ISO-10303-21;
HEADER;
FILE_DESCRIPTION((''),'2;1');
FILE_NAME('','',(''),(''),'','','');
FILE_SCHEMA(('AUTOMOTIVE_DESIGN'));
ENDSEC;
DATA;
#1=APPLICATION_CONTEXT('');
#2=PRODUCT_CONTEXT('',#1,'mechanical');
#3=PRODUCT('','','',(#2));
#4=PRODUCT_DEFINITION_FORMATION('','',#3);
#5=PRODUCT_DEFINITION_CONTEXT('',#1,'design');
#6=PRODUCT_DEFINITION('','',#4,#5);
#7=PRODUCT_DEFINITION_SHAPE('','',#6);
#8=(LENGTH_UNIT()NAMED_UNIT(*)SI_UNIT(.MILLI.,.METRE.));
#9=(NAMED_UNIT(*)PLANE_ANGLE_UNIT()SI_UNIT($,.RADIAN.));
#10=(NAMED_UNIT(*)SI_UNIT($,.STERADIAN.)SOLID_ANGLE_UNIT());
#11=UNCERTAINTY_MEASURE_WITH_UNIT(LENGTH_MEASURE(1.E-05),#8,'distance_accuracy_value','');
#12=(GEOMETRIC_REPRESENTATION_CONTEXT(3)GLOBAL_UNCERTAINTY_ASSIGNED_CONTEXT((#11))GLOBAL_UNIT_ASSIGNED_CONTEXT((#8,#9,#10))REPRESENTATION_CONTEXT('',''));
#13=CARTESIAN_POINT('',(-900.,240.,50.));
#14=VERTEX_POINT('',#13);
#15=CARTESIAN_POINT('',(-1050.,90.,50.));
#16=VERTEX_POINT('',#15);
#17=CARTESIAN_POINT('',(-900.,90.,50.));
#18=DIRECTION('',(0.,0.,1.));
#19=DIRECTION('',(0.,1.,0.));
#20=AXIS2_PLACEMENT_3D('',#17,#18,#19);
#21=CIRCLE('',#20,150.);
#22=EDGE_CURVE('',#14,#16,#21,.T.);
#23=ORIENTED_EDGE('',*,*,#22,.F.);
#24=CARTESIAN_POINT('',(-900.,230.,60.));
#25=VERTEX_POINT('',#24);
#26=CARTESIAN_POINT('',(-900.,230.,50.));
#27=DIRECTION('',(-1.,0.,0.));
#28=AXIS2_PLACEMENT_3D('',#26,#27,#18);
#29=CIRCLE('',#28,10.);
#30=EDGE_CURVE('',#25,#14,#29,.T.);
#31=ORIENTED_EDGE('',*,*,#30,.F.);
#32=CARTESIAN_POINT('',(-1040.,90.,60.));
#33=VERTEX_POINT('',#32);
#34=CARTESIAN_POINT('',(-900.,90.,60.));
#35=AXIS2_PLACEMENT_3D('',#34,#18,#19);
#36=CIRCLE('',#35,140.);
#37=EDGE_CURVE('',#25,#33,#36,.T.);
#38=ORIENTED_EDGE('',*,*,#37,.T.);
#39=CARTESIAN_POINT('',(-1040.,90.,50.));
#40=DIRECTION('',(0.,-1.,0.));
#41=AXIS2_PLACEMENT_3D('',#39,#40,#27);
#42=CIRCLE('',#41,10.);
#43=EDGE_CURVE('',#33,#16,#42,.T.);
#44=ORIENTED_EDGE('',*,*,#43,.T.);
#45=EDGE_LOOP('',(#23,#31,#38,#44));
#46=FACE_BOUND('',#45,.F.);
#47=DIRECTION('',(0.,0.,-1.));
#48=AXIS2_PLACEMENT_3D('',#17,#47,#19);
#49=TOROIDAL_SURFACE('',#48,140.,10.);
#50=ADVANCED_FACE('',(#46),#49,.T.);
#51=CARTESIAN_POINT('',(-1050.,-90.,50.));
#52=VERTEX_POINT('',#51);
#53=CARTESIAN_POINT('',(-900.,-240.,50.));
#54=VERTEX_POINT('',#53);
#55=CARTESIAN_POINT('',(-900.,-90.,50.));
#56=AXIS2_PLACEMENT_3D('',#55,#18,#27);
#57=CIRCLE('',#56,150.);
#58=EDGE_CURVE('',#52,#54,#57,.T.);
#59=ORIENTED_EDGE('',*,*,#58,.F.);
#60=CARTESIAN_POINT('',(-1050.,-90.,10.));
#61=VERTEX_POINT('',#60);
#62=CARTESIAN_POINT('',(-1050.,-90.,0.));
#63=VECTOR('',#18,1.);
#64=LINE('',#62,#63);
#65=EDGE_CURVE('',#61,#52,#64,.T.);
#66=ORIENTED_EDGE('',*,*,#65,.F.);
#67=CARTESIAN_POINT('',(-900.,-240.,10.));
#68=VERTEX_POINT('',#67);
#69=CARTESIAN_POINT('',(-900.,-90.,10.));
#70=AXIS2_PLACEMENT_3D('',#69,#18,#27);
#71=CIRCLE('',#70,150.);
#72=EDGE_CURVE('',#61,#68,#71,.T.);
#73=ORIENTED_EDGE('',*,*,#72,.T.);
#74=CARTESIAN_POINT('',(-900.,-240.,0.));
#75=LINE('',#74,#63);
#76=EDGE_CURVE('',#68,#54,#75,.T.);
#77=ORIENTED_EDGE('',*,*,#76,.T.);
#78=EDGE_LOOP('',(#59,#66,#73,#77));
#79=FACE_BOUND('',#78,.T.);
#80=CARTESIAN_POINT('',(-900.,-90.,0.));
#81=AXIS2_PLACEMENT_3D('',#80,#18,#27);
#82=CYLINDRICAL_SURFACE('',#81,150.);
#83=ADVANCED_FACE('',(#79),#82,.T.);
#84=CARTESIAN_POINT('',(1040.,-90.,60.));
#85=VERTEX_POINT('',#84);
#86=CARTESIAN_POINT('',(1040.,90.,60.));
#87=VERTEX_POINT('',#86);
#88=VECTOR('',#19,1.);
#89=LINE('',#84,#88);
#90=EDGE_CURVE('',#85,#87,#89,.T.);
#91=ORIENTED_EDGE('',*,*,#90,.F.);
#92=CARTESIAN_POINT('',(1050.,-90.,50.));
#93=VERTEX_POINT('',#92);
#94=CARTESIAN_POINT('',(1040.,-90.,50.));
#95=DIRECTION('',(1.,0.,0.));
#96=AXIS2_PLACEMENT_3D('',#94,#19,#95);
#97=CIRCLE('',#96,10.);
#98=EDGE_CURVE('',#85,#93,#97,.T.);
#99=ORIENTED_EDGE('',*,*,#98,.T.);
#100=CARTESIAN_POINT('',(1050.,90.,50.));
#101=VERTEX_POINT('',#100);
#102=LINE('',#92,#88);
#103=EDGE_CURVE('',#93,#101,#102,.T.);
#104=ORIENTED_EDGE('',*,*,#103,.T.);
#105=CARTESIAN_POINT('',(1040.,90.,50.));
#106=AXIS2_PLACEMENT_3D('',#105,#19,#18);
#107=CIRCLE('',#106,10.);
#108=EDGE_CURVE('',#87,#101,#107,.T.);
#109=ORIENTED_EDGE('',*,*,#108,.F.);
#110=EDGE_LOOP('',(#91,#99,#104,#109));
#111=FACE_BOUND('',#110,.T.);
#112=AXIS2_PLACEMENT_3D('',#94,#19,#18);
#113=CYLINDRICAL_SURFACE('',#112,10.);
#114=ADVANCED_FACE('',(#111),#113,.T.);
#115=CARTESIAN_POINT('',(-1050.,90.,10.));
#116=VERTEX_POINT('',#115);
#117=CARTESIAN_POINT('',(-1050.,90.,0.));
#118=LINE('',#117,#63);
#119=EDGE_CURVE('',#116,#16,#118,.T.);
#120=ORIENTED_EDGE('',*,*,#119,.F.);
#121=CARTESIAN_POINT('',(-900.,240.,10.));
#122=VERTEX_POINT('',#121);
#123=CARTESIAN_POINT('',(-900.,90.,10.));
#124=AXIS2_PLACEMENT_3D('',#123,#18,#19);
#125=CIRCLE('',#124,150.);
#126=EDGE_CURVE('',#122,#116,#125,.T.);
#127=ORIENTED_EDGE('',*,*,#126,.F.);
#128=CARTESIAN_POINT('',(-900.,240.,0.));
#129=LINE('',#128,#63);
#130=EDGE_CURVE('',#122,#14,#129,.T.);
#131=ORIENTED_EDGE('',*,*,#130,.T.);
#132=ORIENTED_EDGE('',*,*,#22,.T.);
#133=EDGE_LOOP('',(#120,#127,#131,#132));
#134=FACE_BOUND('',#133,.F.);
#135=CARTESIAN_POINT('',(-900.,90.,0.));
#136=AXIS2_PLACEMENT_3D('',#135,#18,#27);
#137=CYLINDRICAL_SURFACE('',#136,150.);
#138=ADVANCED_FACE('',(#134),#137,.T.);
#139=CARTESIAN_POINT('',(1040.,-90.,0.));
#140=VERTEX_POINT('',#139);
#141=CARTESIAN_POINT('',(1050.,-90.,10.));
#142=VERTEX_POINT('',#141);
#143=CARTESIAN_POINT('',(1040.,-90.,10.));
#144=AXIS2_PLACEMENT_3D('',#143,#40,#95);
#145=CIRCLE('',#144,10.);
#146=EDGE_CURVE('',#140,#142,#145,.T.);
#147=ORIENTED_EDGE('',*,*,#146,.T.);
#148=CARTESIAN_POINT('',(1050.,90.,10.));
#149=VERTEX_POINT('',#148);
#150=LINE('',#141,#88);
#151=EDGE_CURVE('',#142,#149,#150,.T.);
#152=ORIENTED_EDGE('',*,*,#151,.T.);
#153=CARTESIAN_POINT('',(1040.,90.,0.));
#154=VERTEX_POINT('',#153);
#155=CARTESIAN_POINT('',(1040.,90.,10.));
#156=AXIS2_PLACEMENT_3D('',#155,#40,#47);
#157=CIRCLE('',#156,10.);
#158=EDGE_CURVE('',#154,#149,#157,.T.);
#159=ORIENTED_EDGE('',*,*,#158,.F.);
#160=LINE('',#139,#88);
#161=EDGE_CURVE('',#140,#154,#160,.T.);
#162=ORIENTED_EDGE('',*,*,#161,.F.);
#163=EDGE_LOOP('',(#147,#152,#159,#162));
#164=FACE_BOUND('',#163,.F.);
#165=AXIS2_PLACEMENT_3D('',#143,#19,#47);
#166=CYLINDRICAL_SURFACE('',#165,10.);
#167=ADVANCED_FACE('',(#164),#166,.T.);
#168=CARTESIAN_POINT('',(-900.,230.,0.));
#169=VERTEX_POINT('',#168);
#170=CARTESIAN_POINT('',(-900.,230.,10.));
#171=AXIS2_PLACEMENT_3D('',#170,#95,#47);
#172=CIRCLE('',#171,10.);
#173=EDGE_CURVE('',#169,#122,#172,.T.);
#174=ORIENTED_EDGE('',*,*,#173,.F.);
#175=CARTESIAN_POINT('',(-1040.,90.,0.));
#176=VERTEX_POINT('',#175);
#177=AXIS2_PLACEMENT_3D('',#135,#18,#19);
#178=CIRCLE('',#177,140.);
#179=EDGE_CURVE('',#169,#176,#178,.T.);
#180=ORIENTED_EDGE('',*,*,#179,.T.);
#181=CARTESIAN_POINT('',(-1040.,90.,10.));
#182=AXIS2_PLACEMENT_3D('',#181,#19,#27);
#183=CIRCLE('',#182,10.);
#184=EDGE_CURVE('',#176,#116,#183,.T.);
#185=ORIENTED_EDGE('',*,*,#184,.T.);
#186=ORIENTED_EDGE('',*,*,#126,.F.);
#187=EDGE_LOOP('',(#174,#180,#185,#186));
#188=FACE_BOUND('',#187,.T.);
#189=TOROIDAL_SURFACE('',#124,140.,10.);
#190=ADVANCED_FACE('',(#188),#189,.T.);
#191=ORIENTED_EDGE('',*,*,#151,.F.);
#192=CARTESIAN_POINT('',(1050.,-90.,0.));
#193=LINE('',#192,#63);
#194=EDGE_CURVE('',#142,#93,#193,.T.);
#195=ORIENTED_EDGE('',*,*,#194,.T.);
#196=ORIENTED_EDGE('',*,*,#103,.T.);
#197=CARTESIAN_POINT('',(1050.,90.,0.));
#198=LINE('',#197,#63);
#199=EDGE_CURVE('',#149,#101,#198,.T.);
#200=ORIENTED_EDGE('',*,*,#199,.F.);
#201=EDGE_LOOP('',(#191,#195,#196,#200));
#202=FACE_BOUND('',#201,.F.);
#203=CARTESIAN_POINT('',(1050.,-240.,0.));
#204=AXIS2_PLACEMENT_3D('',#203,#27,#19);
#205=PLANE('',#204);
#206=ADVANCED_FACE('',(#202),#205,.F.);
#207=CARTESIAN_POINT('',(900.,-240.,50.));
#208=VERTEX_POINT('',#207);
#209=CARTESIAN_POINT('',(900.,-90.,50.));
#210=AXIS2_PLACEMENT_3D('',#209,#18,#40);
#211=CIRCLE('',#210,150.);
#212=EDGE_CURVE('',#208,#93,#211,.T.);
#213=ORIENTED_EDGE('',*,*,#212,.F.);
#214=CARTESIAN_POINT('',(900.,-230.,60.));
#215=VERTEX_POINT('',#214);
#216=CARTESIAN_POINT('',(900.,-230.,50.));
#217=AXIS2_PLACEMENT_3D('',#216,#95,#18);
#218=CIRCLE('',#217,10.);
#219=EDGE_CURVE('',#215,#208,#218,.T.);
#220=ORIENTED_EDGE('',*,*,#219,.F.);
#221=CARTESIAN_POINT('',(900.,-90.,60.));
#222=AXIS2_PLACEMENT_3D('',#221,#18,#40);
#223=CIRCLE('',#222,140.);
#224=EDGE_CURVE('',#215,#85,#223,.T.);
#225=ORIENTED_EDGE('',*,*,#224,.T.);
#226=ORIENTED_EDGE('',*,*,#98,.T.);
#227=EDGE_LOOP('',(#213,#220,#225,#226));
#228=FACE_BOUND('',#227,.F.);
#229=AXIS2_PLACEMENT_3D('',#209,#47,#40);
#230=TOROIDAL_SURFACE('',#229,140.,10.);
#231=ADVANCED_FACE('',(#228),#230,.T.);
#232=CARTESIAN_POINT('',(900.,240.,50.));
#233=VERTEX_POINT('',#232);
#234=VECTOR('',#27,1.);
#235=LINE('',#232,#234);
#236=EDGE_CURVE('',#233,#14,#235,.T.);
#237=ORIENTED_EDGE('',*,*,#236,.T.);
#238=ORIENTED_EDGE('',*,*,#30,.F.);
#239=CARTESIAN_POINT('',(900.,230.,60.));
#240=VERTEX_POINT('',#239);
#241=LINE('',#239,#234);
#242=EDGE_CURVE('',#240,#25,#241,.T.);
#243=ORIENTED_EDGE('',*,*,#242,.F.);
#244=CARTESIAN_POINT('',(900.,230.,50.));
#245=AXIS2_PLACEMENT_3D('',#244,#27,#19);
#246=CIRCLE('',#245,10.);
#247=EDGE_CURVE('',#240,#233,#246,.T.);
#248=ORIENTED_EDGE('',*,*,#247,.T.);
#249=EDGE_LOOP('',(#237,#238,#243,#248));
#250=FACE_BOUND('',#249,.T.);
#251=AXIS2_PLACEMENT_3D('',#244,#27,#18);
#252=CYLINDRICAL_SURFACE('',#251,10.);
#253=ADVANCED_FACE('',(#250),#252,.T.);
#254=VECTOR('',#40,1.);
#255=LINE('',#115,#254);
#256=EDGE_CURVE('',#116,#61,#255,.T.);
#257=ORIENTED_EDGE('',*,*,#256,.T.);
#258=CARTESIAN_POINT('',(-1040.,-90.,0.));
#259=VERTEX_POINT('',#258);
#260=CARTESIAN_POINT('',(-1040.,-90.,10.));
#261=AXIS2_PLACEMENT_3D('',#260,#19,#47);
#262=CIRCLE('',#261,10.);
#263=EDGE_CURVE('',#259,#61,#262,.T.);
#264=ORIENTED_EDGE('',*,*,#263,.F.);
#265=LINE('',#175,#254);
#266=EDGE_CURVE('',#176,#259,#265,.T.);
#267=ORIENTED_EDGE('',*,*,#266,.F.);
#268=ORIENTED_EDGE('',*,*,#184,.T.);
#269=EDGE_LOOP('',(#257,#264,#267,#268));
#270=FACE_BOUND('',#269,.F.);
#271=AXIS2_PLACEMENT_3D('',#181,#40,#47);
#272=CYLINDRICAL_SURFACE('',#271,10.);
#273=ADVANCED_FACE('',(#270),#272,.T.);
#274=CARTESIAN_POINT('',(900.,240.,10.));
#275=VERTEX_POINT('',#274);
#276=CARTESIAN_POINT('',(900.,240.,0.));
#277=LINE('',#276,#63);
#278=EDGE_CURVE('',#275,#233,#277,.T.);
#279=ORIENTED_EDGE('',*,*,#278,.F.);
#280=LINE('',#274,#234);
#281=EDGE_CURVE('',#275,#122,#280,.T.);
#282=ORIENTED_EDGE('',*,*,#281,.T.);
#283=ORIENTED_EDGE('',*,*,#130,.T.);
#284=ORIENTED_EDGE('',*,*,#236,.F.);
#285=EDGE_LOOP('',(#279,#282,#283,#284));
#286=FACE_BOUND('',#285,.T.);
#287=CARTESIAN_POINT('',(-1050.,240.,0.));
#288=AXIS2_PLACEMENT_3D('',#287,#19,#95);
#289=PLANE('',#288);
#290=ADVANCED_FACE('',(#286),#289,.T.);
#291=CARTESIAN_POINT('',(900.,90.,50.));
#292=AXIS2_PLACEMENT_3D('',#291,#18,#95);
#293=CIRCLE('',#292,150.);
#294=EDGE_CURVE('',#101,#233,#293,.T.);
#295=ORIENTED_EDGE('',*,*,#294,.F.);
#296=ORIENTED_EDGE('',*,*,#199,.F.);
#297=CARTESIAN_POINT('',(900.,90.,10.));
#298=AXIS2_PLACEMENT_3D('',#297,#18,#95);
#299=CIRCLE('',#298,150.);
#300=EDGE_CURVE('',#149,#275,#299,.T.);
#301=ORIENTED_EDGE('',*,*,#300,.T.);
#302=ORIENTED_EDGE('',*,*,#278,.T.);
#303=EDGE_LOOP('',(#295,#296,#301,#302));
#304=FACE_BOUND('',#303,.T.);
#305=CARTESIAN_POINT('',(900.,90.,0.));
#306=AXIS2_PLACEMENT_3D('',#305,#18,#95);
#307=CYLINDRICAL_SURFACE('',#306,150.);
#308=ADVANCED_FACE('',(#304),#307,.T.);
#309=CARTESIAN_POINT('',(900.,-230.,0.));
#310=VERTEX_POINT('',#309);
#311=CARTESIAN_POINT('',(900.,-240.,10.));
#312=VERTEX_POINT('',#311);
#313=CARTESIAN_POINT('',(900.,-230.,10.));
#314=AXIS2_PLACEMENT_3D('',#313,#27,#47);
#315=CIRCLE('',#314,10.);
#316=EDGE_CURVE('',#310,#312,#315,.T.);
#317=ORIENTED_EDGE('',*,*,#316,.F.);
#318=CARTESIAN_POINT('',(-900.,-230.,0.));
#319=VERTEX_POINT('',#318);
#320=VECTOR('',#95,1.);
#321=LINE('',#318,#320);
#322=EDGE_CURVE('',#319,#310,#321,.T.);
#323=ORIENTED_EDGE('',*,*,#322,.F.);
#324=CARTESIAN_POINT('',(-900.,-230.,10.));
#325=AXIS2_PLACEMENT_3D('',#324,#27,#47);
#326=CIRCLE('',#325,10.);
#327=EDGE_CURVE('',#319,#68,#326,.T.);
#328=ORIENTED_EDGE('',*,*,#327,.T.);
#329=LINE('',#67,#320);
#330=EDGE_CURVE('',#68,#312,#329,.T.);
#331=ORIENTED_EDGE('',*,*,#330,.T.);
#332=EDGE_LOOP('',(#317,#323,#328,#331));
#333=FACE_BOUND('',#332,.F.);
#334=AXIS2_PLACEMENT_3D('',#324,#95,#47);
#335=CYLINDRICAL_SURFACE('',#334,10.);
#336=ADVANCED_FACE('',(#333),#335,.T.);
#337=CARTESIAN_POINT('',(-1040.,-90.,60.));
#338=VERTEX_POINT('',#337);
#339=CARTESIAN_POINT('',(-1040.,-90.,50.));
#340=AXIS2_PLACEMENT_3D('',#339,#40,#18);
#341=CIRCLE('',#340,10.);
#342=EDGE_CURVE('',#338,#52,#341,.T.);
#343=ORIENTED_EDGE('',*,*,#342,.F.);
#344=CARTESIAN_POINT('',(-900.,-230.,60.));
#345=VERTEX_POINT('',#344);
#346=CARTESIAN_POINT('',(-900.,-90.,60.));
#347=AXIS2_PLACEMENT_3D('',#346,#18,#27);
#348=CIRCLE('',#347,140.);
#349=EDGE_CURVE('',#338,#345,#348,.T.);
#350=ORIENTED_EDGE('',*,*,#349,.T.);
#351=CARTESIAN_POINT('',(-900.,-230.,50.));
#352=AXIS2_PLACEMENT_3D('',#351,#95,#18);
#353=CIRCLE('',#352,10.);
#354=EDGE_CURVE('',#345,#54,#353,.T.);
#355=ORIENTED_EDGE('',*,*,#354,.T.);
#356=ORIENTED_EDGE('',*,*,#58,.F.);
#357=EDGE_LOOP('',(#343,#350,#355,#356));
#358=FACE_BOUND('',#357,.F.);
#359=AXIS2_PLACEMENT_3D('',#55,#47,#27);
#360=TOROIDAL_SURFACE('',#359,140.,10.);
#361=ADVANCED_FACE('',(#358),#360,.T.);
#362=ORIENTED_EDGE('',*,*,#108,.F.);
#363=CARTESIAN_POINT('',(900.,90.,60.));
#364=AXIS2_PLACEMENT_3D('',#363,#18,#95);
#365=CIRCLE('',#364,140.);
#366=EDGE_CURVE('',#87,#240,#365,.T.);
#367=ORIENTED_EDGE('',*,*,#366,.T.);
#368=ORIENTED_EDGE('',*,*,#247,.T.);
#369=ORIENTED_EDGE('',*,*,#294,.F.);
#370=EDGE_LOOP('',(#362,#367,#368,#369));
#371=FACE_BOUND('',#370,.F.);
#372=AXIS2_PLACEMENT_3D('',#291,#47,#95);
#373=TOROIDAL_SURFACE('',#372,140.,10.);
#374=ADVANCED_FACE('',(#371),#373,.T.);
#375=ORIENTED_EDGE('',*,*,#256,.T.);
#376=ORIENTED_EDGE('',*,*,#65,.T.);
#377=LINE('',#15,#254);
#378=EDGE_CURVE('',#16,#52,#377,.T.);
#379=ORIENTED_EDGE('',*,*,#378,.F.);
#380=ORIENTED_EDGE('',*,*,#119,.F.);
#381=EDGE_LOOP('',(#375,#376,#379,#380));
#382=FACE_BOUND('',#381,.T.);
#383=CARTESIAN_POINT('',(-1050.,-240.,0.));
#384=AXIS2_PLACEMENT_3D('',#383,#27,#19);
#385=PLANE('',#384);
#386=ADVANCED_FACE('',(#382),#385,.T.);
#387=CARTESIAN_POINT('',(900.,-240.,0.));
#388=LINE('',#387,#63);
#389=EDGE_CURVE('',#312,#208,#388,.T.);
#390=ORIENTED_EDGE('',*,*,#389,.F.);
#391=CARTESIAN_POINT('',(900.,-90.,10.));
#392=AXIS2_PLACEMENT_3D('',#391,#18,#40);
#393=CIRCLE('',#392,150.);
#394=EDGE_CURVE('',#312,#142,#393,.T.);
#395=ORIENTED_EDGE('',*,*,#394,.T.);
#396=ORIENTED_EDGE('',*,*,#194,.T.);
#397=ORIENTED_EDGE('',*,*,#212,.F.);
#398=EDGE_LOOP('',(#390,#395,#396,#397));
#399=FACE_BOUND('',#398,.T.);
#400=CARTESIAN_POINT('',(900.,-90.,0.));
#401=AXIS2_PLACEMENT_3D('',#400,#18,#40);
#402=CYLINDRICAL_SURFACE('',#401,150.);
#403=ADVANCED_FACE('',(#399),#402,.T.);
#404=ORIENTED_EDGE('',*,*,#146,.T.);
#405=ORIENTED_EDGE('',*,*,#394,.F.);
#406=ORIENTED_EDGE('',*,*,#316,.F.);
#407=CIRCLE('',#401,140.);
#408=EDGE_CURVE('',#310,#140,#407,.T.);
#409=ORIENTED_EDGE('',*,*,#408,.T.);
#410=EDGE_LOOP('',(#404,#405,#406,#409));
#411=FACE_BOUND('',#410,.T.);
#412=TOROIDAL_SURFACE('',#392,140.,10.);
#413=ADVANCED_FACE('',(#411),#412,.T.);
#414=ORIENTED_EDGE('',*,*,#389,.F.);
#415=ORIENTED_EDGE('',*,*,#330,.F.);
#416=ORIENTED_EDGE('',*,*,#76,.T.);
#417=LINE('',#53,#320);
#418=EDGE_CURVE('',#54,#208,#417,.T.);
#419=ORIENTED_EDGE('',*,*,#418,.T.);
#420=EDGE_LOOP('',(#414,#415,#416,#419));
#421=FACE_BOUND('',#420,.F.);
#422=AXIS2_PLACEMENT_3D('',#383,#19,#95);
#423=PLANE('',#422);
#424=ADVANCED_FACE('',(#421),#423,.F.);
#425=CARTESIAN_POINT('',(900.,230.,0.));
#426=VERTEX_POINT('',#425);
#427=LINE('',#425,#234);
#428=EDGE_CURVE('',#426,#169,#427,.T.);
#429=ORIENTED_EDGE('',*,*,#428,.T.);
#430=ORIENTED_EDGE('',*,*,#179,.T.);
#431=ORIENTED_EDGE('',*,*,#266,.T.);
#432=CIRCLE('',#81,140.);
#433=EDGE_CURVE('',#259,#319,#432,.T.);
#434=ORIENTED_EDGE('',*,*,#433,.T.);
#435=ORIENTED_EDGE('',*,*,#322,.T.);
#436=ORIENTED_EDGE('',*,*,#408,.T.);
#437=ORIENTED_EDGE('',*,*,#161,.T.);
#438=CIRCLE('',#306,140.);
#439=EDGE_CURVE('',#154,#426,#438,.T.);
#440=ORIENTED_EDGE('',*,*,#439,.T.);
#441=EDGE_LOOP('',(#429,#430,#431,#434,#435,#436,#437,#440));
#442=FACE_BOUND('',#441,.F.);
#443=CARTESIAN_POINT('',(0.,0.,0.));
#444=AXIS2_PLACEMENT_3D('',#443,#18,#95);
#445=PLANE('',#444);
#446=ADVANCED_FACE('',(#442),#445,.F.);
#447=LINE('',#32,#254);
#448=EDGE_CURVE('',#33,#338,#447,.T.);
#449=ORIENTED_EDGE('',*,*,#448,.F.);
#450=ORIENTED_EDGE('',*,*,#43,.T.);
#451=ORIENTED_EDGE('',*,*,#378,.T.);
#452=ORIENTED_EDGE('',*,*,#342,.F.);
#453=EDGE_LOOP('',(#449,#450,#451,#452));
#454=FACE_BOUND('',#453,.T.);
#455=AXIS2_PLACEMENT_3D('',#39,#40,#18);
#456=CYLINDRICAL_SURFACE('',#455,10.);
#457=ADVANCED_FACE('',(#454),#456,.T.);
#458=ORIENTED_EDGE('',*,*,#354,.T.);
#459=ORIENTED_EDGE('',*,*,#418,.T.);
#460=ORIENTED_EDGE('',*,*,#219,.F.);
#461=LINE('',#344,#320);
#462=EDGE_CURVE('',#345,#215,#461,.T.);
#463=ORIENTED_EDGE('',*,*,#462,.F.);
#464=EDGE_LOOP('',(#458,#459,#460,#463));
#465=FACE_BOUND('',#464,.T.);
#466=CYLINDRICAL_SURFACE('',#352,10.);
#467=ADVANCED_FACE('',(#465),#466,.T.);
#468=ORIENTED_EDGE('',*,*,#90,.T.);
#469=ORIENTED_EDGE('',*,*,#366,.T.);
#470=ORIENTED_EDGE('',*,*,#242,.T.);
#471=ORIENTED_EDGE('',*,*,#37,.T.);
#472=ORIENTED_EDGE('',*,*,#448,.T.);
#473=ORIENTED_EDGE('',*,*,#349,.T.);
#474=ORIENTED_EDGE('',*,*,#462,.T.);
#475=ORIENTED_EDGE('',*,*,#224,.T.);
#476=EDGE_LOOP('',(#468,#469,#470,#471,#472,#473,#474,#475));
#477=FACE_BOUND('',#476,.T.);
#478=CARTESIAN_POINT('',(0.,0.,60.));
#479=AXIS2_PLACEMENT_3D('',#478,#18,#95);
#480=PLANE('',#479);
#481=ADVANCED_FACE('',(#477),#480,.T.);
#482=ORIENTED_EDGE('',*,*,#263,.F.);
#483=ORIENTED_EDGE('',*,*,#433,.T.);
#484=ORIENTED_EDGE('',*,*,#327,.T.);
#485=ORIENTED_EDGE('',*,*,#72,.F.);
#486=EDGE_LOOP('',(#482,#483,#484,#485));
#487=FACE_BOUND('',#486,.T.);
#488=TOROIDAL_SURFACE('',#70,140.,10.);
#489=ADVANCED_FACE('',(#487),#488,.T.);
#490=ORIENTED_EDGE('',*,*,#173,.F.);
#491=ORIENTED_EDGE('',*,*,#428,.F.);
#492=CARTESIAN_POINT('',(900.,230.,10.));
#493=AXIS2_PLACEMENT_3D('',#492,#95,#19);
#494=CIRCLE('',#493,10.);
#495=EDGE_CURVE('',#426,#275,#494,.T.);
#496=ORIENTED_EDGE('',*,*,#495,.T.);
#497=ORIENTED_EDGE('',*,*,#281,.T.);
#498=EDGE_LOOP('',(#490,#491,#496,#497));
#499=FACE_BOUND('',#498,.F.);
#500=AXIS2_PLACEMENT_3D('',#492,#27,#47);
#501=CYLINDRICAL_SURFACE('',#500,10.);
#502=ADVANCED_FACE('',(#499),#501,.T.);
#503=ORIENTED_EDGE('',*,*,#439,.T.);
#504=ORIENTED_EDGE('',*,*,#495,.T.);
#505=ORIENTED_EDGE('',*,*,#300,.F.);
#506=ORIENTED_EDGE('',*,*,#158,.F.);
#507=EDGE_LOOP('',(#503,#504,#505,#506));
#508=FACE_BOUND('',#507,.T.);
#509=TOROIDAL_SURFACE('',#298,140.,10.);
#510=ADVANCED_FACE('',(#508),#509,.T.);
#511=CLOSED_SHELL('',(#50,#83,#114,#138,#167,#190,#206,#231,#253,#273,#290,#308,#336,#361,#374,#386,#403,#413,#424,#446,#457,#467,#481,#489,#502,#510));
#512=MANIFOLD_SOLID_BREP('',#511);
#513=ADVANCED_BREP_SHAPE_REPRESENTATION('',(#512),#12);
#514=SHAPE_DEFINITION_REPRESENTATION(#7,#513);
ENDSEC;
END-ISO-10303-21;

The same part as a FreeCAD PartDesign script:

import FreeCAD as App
import Part
import Sketcher
Q = App.Units.Quantity


def edges_at(feature, points):
    """Names of the edges that pass closest to the given points."""
    edges = feature.Shape.Edges
    near = lambda p: min(range(len(edges)), key=lambda i: edges[i].distToShape(Part.Vertex(*p))[0])
    return sorted({f"Edge{near(p) + 1}" for p in points})


def add_polygon(sketch, points):
    """Adds a closed chain of lines whose ends are joined by coincident constraints."""
    first, n = sketch.GeometryCount, len(points)
    for a, b in zip(points, points[1:] + points[:1]):
        sketch.addGeometry(Part.LineSegment(App.Vector(*a, 0), App.Vector(*b, 0)), False)
    for i in range(n):
        sketch.addConstraint(Sketcher.Constraint("Coincident", first + i, 2, first + (i + 1) % n, 1))

doc = App.newDocument("Part")
body = doc.addObject("PartDesign::Body", "Body")

# Sketch on XY plane
sketch1 = body.newObject("Sketcher::SketchObject", "Sketch")
sketch1.AttachmentSupport = (doc.getObject("XY_Plane"), [""])
sketch1.MapMode = "FlatFace"
add_polygon(sketch1, [(-1050, 240), (-1050, -240), (1050, -240), (1050, 240)])  # lines 0-3
sketch1.addConstraint(Sketcher.Constraint("Vertical", 0))
sketch1.addConstraint(Sketcher.Constraint("Horizontal", 1))
sketch1.addConstraint(Sketcher.Constraint("Vertical", 2))
sketch1.addConstraint(Sketcher.Constraint("Horizontal", 3))
sketch1.addConstraint(Sketcher.Constraint("Symmetric", 0, 2, 2, 2, -1, 1))
sketch1.addConstraint(Sketcher.Constraint("DistanceX", 1, 1, 1, 2, Q("2100 mm")))
sketch1.addConstraint(Sketcher.Constraint("DistanceY", 0, 2, 0, 1, Q("480 mm")))
pad1 = body.newObject("PartDesign::Pad", "Pad")
pad1.Profile = sketch1
pad1.Length = 60
doc.recompute()

fillet = body.newObject("PartDesign::Fillet", "Fillet")
fillet.Base = (pad1, edges_at(pad1, [
    (-1050, -240, 30),
    (-1050, 240, 30),
    (1050, -240, 30),
    (1050, 240, 30),
]))
fillet.Radius = 150
doc.recompute()

fillet2 = body.newObject("PartDesign::Fillet", "Fillet001")
fillet2.Base = (fillet, edges_at(fillet, [(0, -240, 60), (0, -240, 0)]))
fillet2.Radius = 10

doc.recompute()
